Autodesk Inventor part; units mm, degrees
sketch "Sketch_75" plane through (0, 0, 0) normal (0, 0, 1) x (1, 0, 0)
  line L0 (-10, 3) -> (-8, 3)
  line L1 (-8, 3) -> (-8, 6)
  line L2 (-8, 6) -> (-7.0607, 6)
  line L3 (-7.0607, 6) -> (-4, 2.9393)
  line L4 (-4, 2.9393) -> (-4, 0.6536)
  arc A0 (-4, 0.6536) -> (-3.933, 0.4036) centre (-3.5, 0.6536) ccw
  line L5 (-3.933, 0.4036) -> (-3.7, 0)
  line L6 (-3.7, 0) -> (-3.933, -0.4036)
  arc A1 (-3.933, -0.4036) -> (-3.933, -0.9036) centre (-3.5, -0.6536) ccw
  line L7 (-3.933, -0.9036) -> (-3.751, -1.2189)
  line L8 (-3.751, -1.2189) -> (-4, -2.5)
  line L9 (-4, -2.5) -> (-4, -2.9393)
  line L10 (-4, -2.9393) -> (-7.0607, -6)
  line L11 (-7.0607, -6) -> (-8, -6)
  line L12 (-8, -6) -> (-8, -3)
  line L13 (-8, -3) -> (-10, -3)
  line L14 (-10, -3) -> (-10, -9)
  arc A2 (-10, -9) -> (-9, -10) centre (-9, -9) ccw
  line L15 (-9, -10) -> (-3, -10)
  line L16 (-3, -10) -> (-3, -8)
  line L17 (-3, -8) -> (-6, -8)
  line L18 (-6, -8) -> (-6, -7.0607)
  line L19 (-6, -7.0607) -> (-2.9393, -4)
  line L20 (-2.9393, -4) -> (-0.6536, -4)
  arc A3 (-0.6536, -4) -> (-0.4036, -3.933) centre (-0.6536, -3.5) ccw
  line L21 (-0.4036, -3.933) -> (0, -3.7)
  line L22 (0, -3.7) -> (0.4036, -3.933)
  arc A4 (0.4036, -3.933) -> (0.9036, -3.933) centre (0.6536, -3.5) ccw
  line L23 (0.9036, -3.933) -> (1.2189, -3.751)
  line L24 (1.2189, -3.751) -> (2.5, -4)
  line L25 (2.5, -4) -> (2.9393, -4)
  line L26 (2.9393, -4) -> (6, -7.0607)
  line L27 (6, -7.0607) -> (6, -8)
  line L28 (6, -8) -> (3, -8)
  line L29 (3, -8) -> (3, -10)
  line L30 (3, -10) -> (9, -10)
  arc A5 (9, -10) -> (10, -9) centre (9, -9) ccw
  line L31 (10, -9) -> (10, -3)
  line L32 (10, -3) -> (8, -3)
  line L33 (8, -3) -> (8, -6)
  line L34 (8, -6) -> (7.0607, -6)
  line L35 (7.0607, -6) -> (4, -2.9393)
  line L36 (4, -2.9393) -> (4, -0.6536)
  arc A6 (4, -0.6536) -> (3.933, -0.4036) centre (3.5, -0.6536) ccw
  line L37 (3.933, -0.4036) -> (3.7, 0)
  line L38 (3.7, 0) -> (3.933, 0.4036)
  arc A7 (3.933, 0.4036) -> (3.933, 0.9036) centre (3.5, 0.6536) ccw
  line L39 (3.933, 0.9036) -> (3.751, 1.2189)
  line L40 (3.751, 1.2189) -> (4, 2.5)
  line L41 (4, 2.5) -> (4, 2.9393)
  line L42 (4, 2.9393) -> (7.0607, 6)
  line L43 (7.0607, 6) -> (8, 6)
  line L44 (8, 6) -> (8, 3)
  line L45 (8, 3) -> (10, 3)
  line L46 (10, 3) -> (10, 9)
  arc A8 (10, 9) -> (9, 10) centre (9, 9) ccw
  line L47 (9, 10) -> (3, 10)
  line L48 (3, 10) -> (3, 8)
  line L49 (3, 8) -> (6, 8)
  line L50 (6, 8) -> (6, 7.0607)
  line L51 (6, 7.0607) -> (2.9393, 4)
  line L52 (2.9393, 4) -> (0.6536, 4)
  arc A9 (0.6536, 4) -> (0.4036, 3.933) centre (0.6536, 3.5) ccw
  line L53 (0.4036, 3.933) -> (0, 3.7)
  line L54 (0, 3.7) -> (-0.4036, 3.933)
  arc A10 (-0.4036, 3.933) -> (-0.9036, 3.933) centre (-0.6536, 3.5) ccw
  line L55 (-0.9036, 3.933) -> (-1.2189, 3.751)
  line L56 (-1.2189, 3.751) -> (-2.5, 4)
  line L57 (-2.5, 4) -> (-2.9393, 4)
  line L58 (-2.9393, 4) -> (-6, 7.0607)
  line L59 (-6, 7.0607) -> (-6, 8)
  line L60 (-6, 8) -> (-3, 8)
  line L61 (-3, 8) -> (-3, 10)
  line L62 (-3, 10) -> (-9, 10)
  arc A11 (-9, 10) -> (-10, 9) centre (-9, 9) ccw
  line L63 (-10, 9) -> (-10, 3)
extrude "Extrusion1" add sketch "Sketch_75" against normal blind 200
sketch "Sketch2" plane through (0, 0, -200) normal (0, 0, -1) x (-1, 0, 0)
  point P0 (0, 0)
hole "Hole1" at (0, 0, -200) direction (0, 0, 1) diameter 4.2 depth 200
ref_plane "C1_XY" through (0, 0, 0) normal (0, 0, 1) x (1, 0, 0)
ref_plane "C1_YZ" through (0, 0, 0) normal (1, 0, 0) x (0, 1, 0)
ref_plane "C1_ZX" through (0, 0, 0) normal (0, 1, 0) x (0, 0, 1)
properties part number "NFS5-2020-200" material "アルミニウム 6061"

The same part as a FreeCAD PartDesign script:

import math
import FreeCAD as App
import Part
import Sketcher

V = App.Vector
Q = App.Units.Quantity

doc = App.newDocument("Part")
body = doc.addObject("PartDesign::Body", "Body")

# Sketch on XY plane
sketch1 = doc.addObject("Sketcher::SketchObject", "Sketch")
body.addObject(sketch1)
sketch1.AttachmentSupport = (doc.XY_Plane, [""])
sketch1.MapMode = "FlatFace"
sketch1.addGeometry([
    Part.LineSegment(V(-10, 9, 0), V(-10, 3, 0)),  # 0
    Part.LineSegment(V(-10, 3, 0), V(-8, 3, 0)),  # 1
    Part.LineSegment(V(-8, 3, 0), V(-8, 6, 0)),  # 2
    Part.LineSegment(V(-8, 6, 0), V(-7.06, 6, 0)),  # 3
    Part.LineSegment(V(-7.06, 6, 0), V(-4, 2.94, 0)),  # 4
    Part.LineSegment(V(-4, 2.94, 0), V(-4, 0.65, 0)),  # 5
    Part.ArcOfCircle(Part.Circle(V(-3.5, 0.65, 0), V(0, 0, 1), 0.5), math.radians(180), math.radians(210)),  # 6
    Part.LineSegment(V(-3.93, 0.4, 0), V(-3.7, 0, 0)),  # 7
    Part.LineSegment(V(-3.7, 0, 0), V(-3.93, -0.4, 0)),  # 8
    Part.ArcOfCircle(Part.Circle(V(-3.5, -0.65, 0), V(0, 0, 1), 0.5), math.radians(150), math.radians(210)),  # 9
    Part.LineSegment(V(-3.93, -0.9, 0), V(-3.75, -1.22, 0)),  # 10
    Part.LineSegment(V(-3.75, -1.22, 0), V(-4, -2.5, 0)),  # 11
    Part.LineSegment(V(-4, -2.5, 0), V(-4, -2.94, 0)),  # 12
    Part.LineSegment(V(-4, -2.94, 0), V(-7.06, -6, 0)),  # 13
    Part.LineSegment(V(-7.06, -6, 0), V(-8, -6, 0)),  # 14
    Part.LineSegment(V(-8, -6, 0), V(-8, -3, 0)),  # 15
    Part.LineSegment(V(-8, -3, 0), V(-10, -3, 0)),  # 16
    Part.LineSegment(V(-10, -3, 0), V(-10, -9, 0)),  # 17
    Part.ArcOfCircle(Part.Circle(V(-9, -9, 0), V(0, 0, 1), 1), math.radians(180), math.radians(270)),  # 18
    Part.LineSegment(V(-9, -10, 0), V(-3, -10, 0)),  # 19
    Part.LineSegment(V(-3, -10, 0), V(-3, -8, 0)),  # 20
    Part.LineSegment(V(-3, -8, 0), V(-6, -8, 0)),  # 21
    Part.LineSegment(V(-6, -8, 0), V(-6, -7.06, 0)),  # 22
    Part.LineSegment(V(-6, -7.06, 0), V(-2.94, -4, 0)),  # 23
    Part.LineSegment(V(-2.94, -4, 0), V(-0.65, -4, 0)),  # 24
    Part.ArcOfCircle(Part.Circle(V(-0.65, -3.5, 0), V(0, 0, 1), 0.5), math.radians(-90), math.radians(-60)),  # 25
    Part.LineSegment(V(-0.4, -3.93, 0), V(0, -3.7, 0)),  # 26
    Part.LineSegment(V(0, -3.7, 0), V(0.4, -3.93, 0)),  # 27
    Part.ArcOfCircle(Part.Circle(V(0.65, -3.5, 0), V(0, 0, 1), 0.5), math.radians(-120), math.radians(-60)),  # 28
    Part.LineSegment(V(0.9, -3.93, 0), V(1.22, -3.75, 0)),  # 29
    Part.LineSegment(V(1.22, -3.75, 0), V(2.5, -4, 0)),  # 30
    Part.LineSegment(V(2.5, -4, 0), V(2.94, -4, 0)),  # 31
    Part.LineSegment(V(2.94, -4, 0), V(6, -7.06, 0)),  # 32
    Part.LineSegment(V(6, -7.06, 0), V(6, -8, 0)),  # 33
    Part.LineSegment(V(6, -8, 0), V(3, -8, 0)),  # 34
    Part.LineSegment(V(3, -8, 0), V(3, -10, 0)),  # 35
    Part.LineSegment(V(3, -10, 0), V(9, -10, 0)),  # 36
    Part.ArcOfCircle(Part.Circle(V(9, -9, 0), V(0, 0, 1), 1), math.radians(-90), math.radians(0)),  # 37
    Part.LineSegment(V(10, -9, 0), V(10, -3, 0)),  # 38
    Part.LineSegment(V(10, -3, 0), V(8, -3, 0)),  # 39
    Part.LineSegment(V(8, -3, 0), V(8, -6, 0)),  # 40
    Part.LineSegment(V(8, -6, 0), V(7.06, -6, 0)),  # 41
    Part.LineSegment(V(7.06, -6, 0), V(4, -2.94, 0)),  # 42
    Part.LineSegment(V(4, -2.94, 0), V(4, -0.65, 0)),  # 43
    Part.ArcOfCircle(Part.Circle(V(3.5, -0.65, 0), V(0, 0, 1), 0.5), math.radians(0), math.radians(30)),  # 44
    Part.LineSegment(V(3.93, -0.4, 0), V(3.7, 0, 0)),  # 45
    Part.LineSegment(V(3.7, 0, 0), V(3.93, 0.4, 0)),  # 46
    Part.ArcOfCircle(Part.Circle(V(3.5, 0.65, 0), V(0, 0, 1), 0.5), math.radians(-30), math.radians(30)),  # 47
    Part.LineSegment(V(3.93, 0.9, 0), V(3.75, 1.22, 0)),  # 48
    Part.LineSegment(V(3.75, 1.22, 0), V(4, 2.5, 0)),  # 49
    Part.LineSegment(V(4, 2.5, 0), V(4, 2.94, 0)),  # 50
    Part.LineSegment(V(4, 2.94, 0), V(7.06, 6, 0)),  # 51
    Part.LineSegment(V(7.06, 6, 0), V(8, 6, 0)),  # 52
    Part.LineSegment(V(8, 6, 0), V(8, 3, 0)),  # 53
    Part.LineSegment(V(8, 3, 0), V(10, 3, 0)),  # 54
    Part.LineSegment(V(10, 3, 0), V(10, 9, 0)),  # 55
    Part.ArcOfCircle(Part.Circle(V(9, 9, 0), V(0, 0, 1), 1), math.radians(0), math.radians(90)),  # 56
    Part.LineSegment(V(9, 10, 0), V(3, 10, 0)),  # 57
    Part.LineSegment(V(3, 10, 0), V(3, 8, 0)),  # 58
    Part.LineSegment(V(3, 8, 0), V(6, 8, 0)),  # 59
    Part.LineSegment(V(6, 8, 0), V(6, 7.06, 0)),  # 60
    Part.LineSegment(V(6, 7.06, 0), V(2.94, 4, 0)),  # 61
    Part.LineSegment(V(2.94, 4, 0), V(0.65, 4, 0)),  # 62
    Part.ArcOfCircle(Part.Circle(V(0.65, 3.5, 0), V(0, 0, 1), 0.5), math.radians(90), math.radians(120)),  # 63
    Part.LineSegment(V(0.4, 3.93, 0), V(0, 3.7, 0)),  # 64
    Part.LineSegment(V(0, 3.7, 0), V(-0.4, 3.93, 0)),  # 65
    Part.ArcOfCircle(Part.Circle(V(-0.65, 3.5, 0), V(0, 0, 1), 0.5), math.radians(60), math.radians(120)),  # 66
    Part.LineSegment(V(-0.9, 3.93, 0), V(-1.22, 3.75, 0)),  # 67
    Part.LineSegment(V(-1.22, 3.75, 0), V(-2.5, 4, 0)),  # 68
    Part.LineSegment(V(-2.5, 4, 0), V(-2.94, 4, 0)),  # 69
    Part.LineSegment(V(-2.94, 4, 0), V(-6, 7.06, 0)),  # 70
    Part.LineSegment(V(-6, 7.06, 0), V(-6, 8, 0)),  # 71
    Part.LineSegment(V(-6, 8, 0), V(-3, 8, 0)),  # 72
    Part.LineSegment(V(-3, 8, 0), V(-3, 10, 0)),  # 73
    Part.LineSegment(V(-3, 10, 0), V(-9, 10, 0)),  # 74
    Part.ArcOfCircle(Part.Circle(V(-9, 9, 0), V(0, 0, 1), 1), math.radians(90), math.radians(180)),  # 75
], False)
sketch1.addConstraint([
    Sketcher.Constraint("Coincident", 0, 2, 1, 1),
    Sketcher.Constraint("Coincident", 1, 2, 2, 1),
    Sketcher.Constraint("Coincident", 2, 2, 3, 1),
    Sketcher.Constraint("Coincident", 3, 2, 4, 1),
    Sketcher.Constraint("Coincident", 4, 2, 5, 1),
    Sketcher.Constraint("Tangent", 5, 2, 6, 1),
    Sketcher.Constraint("Tangent", 6, 2, 7, 1),
    Sketcher.Constraint("Coincident", 7, 2, 8, 1),
    Sketcher.Constraint("Tangent", 8, 2, 9, 1),
    Sketcher.Constraint("Tangent", 9, 2, 10, 1),
    Sketcher.Constraint("Coincident", 10, 2, 11, 1),
    Sketcher.Constraint("Coincident", 11, 2, 12, 1),
    Sketcher.Constraint("Coincident", 12, 2, 13, 1),
    Sketcher.Constraint("Coincident", 13, 2, 14, 1),
    Sketcher.Constraint("Coincident", 14, 2, 15, 1),
    Sketcher.Constraint("Coincident", 15, 2, 16, 1),
    Sketcher.Constraint("Coincident", 16, 2, 17, 1),
    Sketcher.Constraint("Tangent", 17, 2, 18, 1),
    Sketcher.Constraint("Tangent", 18, 2, 19, 1),
    Sketcher.Constraint("Coincident", 19, 2, 20, 1),
    Sketcher.Constraint("Coincident", 20, 2, 21, 1),
    Sketcher.Constraint("Coincident", 21, 2, 22, 1),
    Sketcher.Constraint("Coincident", 22, 2, 23, 1),
    Sketcher.Constraint("Coincident", 23, 2, 24, 1),
    Sketcher.Constraint("Tangent", 24, 2, 25, 1),
    Sketcher.Constraint("Tangent", 25, 2, 26, 1),
    Sketcher.Constraint("Coincident", 26, 2, 27, 1),
    Sketcher.Constraint("Tangent", 27, 2, 28, 1),
    Sketcher.Constraint("Tangent", 28, 2, 29, 1),
    Sketcher.Constraint("Coincident", 29, 2, 30, 1),
    Sketcher.Constraint("Coincident", 30, 2, 31, 1),
    Sketcher.Constraint("Coincident", 31, 2, 32, 1),
    Sketcher.Constraint("Coincident", 32, 2, 33, 1),
    Sketcher.Constraint("Coincident", 33, 2, 34, 1),
    Sketcher.Constraint("Coincident", 34, 2, 35, 1),
    Sketcher.Constraint("Coincident", 35, 2, 36, 1),
    Sketcher.Constraint("Tangent", 36, 2, 37, 1),
    Sketcher.Constraint("Tangent", 37, 2, 38, 1),
    Sketcher.Constraint("Coincident", 38, 2, 39, 1),
    Sketcher.Constraint("Coincident", 39, 2, 40, 1),
    Sketcher.Constraint("Coincident", 40, 2, 41, 1),
    Sketcher.Constraint("Coincident", 41, 2, 42, 1),
    Sketcher.Constraint("Coincident", 42, 2, 43, 1),
    Sketcher.Constraint("Tangent", 43, 2, 44, 1),
    Sketcher.Constraint("Tangent", 44, 2, 45, 1),
    Sketcher.Constraint("Coincident", 45, 2, 46, 1),
    Sketcher.Constraint("Tangent", 46, 2, 47, 1),
    Sketcher.Constraint("Tangent", 47, 2, 48, 1),
    Sketcher.Constraint("Coincident", 48, 2, 49, 1),
    Sketcher.Constraint("Coincident", 49, 2, 50, 1),
    Sketcher.Constraint("Coincident", 50, 2, 51, 1),
    Sketcher.Constraint("Coincident", 51, 2, 52, 1),
    Sketcher.Constraint("Coincident", 52, 2, 53, 1),
    Sketcher.Constraint("Coincident", 53, 2, 54, 1),
    Sketcher.Constraint("Coincident", 54, 2, 55, 1),
    Sketcher.Constraint("Tangent", 55, 2, 56, 1),
    Sketcher.Constraint("Tangent", 56, 2, 57, 1),
    Sketcher.Constraint("Coincident", 57, 2, 58, 1),
    Sketcher.Constraint("Coincident", 58, 2, 59, 1),
    Sketcher.Constraint("Coincident", 59, 2, 60, 1),
    Sketcher.Constraint("Coincident", 60, 2, 61, 1),
    Sketcher.Constraint("Coincident", 61, 2, 62, 1),
    Sketcher.Constraint("Tangent", 62, 2, 63, 1),
    Sketcher.Constraint("Tangent", 63, 2, 64, 1),
    Sketcher.Constraint("Coincident", 64, 2, 65, 1),
    Sketcher.Constraint("Tangent", 65, 2, 66, 1),
    Sketcher.Constraint("Tangent", 66, 2, 67, 1),
    Sketcher.Constraint("Coincident", 67, 2, 68, 1),
    Sketcher.Constraint("Coincident", 68, 2, 69, 1),
    Sketcher.Constraint("Coincident", 69, 2, 70, 1),
    Sketcher.Constraint("Coincident", 70, 2, 71, 1),
    Sketcher.Constraint("Coincident", 71, 2, 72, 1),
    Sketcher.Constraint("Coincident", 72, 2, 73, 1),
    Sketcher.Constraint("Coincident", 73, 2, 74, 1),
    Sketcher.Constraint("Tangent", 74, 2, 75, 1),
    Sketcher.Constraint("Tangent", 75, 2, 0, 1),
    Sketcher.Constraint("Vertical", 0),
    Sketcher.Constraint("Horizontal", 1),
    Sketcher.Constraint("Vertical", 2),
    Sketcher.Constraint("Horizontal", 3),
    Sketcher.Constraint("Vertical", 5),
    Sketcher.Constraint("Vertical", 12),
    Sketcher.Constraint("Horizontal", 14),
    Sketcher.Constraint("Vertical", 15),
    Sketcher.Constraint("Horizontal", 16),
    Sketcher.Constraint("Vertical", 17),
    Sketcher.Constraint("Horizontal", 19),
    Sketcher.Constraint("Vertical", 20),
    Sketcher.Constraint("Horizontal", 21),
    Sketcher.Constraint("Vertical", 22),
    Sketcher.Constraint("Horizontal", 24),
    Sketcher.Constraint("Horizontal", 31),
    Sketcher.Constraint("Vertical", 33),
    Sketcher.Constraint("Horizontal", 34),
    Sketcher.Constraint("Vertical", 35),
    Sketcher.Constraint("Horizontal", 36),
    Sketcher.Constraint("Vertical", 38),
    Sketcher.Constraint("Horizontal", 39),
    Sketcher.Constraint("Vertical", 40),
    Sketcher.Constraint("Horizontal", 41),
    Sketcher.Constraint("Vertical", 43),
    Sketcher.Constraint("Vertical", 50),
    Sketcher.Constraint("Horizontal", 52),
    Sketcher.Constraint("Vertical", 53),
    Sketcher.Constraint("Horizontal", 54),
    Sketcher.Constraint("Vertical", 55),
    Sketcher.Constraint("Horizontal", 57),
    Sketcher.Constraint("Vertical", 58),
    Sketcher.Constraint("Horizontal", 59),
    Sketcher.Constraint("Vertical", 60),
    Sketcher.Constraint("Horizontal", 62),
    Sketcher.Constraint("Horizontal", 69),
    Sketcher.Constraint("Vertical", 71),
    Sketcher.Constraint("Horizontal", 72),
    Sketcher.Constraint("Vertical", 73),
    Sketcher.Constraint("Horizontal", 74),
    Sketcher.Constraint("Equal", 6, 9),
    Sketcher.Constraint("Equal", 9, 25),
    Sketcher.Constraint("Equal", 25, 28),
    Sketcher.Constraint("Equal", 18, 37),
    Sketcher.Constraint("Equal", 28, 44),
    Sketcher.Constraint("Equal", 44, 47),
    Sketcher.Constraint("Equal", 37, 56),
    Sketcher.Constraint("Equal", 47, 63),
    Sketcher.Constraint("Equal", 63, 66),
    Sketcher.Constraint("Equal", 56, 75),
    Sketcher.Constraint("Symmetric", 6, 3, 44, 3, -1, 1),
    Sketcher.Constraint("Symmetric", 9, 3, 47, 3, -1, 1),
    Sketcher.Constraint("Symmetric", 18, 3, 56, 3, -1, 1),
    Sketcher.Constraint("Symmetric", 25, 3, 63, 3, -1, 1),
    Sketcher.Constraint("Symmetric", 28, 3, 66, 3, -1, 1),
    Sketcher.Constraint("Symmetric", 37, 3, 75, 3, -1, 1),
    Sketcher.Constraint("Symmetric", 1, 2, 39, 2, -1, 1),
    Sketcher.Constraint("Symmetric", 3, 2, 41, 2, -1, 1),
    Sketcher.Constraint("Symmetric", 7, 2, 45, 2, -1, 1),
    Sketcher.Constraint("Symmetric", 10, 2, 48, 2, -1, 1),
    Sketcher.Constraint("Symmetric", 11, 2, 49, 2, -1, 1),
    Sketcher.Constraint("Symmetric", 13, 2, 51, 2, -1, 1),
    Sketcher.Constraint("Symmetric", 15, 2, 53, 2, -1, 1),
    Sketcher.Constraint("Symmetric", 20, 2, 58, 2, -1, 1),
    Sketcher.Constraint("Symmetric", 22, 2, 60, 2, -1, 1),
    Sketcher.Constraint("Symmetric", 26, 2, 64, 2, -1, 1),
    Sketcher.Constraint("Symmetric", 29, 2, 67, 2, -1, 1),
    Sketcher.Constraint("Symmetric", 30, 2, 68, 2, -1, 1),
    Sketcher.Constraint("Symmetric", 32, 2, 70, 2, -1, 1),
    Sketcher.Constraint("Symmetric", 34, 2, 72, 2, -1, 1),
    Sketcher.Constraint("Symmetric", 25, 3, 28, 3, -2),
    Sketcher.Constraint("Symmetric", 18, 3, 37, 3, -2),
    Sketcher.Constraint("Symmetric", 9, 3, 44, 3, -2),
    Sketcher.Constraint("Symmetric", 23, 2, 31, 2, -2),
    Sketcher.Constraint("Symmetric", 22, 2, 32, 2, -2),
    Sketcher.Constraint("Symmetric", 20, 2, 34, 2, -2),
    Sketcher.Constraint("Symmetric", 15, 2, 39, 2, -2),
    Sketcher.Constraint("Symmetric", 13, 2, 41, 2, -2),
    Sketcher.Constraint("Symmetric", 12, 2, 42, 2, -2),
    Sketcher.Constraint("PointOnObject", 7, 2, -1),
    Sketcher.Constraint("PointOnObject", 26, 2, -2),
    Sketcher.Constraint("Parallel", 7, 10),
    Sketcher.Constraint("Perpendicular", 4, 13),
    Sketcher.Constraint("Parallel", 13, 23),
    Sketcher.Constraint("Perpendicular", 10, 26),
    Sketcher.Constraint("Parallel", 26, 29),
    Sketcher.Constraint("Perpendicular", 11, 30),
    Sketcher.Constraint("Perpendicular", 23, 32),
    Sketcher.Constraint("Perpendicular", 42, 51),
    Sketcher.Constraint("Parallel", 51, 61),
    Sketcher.Constraint("Perpendicular", 61, 70),
    Sketcher.Constraint("Equal", 74, 0),
    Sketcher.Constraint("Equal", 72, 2),
    Sketcher.Constraint("Equal", 62, 5),
    Sketcher.Constraint("Equal", 69, 12),
    Sketcher.Constraint("Equal", 54, 20),
    Sketcher.Constraint("Equal", 52, 22),
    Sketcher.Constraint("Equal", 13, 23),
    Sketcher.Constraint("Equal", 8, 26),
    Sketcher.Constraint("Radius", 18, Q("1 mm")),
    Sketcher.Constraint("Radius", 6, Q("0.5 mm")),
    Sketcher.Constraint("DistanceX", 1, 1, 1, 2, Q("2 mm")),
    Sketcher.Constraint("DistanceX", 19, 1, 19, 2, Q("6 mm")),
    Sketcher.Constraint("DistanceX", 21, 2, 21, 1, Q("3 mm")),
    Sketcher.Constraint("Angle", 11, Q("-100.999 deg")),
    Sketcher.Constraint("DistanceX", 18, 3, -1, 1, Q("9 mm")),
    Sketcher.Constraint("DistanceX", 4, 2, -1, 1, Q("4 mm")),
    Sketcher.Constraint("DistanceX", 7, 2, -1, 1, Q("3.7 mm")),
    Sketcher.Constraint("DistanceY", 11, 2, -1, 1, Q("2.5 mm")),
    Sketcher.Constraint("Distance", 7, Q("0.466 mm")),
    Sketcher.Constraint("DistanceX", 3, 1, 3, 2, Q("0.9393 mm")),
])
pad1 = doc.addObject("PartDesign::Pad", "Pad")
body.addObject(pad1)
pad1.Profile = sketch1
pad1.Length = 200
pad1.Reversed = True

# Sketch on XY plane
sketch2 = doc.addObject("Sketcher::SketchObject", "Sketch001")
body.addObject(sketch2)
sketch2.AttachmentSupport = (doc.XY_Plane, [""])
sketch2.MapMode = "FlatFace"
sketch2.AttachmentOffset = App.Placement(V(0, 0, -200), App.Rotation())
sketch2.addGeometry(Part.Circle(V(0, 0, 0), V(0, 0, 1), 2.1), False)
sketch2.addConstraint([
    Sketcher.Constraint("Coincident", 0, 3, -1, 1),
    Sketcher.Constraint("Diameter", 0, Q("4.2 mm")),
])
doc.recompute()
hole = doc.addObject("PartDesign::Hole", "Hole")
body.addObject(hole)
hole.Profile = sketch2
hole.ThreadType = "None"
hole.Diameter = 4.2
hole.DepthType = "Dimension"
hole.Depth = 200
hole.DrillPoint = "Flat"
hole.Reversed = True

doc.recompute()
